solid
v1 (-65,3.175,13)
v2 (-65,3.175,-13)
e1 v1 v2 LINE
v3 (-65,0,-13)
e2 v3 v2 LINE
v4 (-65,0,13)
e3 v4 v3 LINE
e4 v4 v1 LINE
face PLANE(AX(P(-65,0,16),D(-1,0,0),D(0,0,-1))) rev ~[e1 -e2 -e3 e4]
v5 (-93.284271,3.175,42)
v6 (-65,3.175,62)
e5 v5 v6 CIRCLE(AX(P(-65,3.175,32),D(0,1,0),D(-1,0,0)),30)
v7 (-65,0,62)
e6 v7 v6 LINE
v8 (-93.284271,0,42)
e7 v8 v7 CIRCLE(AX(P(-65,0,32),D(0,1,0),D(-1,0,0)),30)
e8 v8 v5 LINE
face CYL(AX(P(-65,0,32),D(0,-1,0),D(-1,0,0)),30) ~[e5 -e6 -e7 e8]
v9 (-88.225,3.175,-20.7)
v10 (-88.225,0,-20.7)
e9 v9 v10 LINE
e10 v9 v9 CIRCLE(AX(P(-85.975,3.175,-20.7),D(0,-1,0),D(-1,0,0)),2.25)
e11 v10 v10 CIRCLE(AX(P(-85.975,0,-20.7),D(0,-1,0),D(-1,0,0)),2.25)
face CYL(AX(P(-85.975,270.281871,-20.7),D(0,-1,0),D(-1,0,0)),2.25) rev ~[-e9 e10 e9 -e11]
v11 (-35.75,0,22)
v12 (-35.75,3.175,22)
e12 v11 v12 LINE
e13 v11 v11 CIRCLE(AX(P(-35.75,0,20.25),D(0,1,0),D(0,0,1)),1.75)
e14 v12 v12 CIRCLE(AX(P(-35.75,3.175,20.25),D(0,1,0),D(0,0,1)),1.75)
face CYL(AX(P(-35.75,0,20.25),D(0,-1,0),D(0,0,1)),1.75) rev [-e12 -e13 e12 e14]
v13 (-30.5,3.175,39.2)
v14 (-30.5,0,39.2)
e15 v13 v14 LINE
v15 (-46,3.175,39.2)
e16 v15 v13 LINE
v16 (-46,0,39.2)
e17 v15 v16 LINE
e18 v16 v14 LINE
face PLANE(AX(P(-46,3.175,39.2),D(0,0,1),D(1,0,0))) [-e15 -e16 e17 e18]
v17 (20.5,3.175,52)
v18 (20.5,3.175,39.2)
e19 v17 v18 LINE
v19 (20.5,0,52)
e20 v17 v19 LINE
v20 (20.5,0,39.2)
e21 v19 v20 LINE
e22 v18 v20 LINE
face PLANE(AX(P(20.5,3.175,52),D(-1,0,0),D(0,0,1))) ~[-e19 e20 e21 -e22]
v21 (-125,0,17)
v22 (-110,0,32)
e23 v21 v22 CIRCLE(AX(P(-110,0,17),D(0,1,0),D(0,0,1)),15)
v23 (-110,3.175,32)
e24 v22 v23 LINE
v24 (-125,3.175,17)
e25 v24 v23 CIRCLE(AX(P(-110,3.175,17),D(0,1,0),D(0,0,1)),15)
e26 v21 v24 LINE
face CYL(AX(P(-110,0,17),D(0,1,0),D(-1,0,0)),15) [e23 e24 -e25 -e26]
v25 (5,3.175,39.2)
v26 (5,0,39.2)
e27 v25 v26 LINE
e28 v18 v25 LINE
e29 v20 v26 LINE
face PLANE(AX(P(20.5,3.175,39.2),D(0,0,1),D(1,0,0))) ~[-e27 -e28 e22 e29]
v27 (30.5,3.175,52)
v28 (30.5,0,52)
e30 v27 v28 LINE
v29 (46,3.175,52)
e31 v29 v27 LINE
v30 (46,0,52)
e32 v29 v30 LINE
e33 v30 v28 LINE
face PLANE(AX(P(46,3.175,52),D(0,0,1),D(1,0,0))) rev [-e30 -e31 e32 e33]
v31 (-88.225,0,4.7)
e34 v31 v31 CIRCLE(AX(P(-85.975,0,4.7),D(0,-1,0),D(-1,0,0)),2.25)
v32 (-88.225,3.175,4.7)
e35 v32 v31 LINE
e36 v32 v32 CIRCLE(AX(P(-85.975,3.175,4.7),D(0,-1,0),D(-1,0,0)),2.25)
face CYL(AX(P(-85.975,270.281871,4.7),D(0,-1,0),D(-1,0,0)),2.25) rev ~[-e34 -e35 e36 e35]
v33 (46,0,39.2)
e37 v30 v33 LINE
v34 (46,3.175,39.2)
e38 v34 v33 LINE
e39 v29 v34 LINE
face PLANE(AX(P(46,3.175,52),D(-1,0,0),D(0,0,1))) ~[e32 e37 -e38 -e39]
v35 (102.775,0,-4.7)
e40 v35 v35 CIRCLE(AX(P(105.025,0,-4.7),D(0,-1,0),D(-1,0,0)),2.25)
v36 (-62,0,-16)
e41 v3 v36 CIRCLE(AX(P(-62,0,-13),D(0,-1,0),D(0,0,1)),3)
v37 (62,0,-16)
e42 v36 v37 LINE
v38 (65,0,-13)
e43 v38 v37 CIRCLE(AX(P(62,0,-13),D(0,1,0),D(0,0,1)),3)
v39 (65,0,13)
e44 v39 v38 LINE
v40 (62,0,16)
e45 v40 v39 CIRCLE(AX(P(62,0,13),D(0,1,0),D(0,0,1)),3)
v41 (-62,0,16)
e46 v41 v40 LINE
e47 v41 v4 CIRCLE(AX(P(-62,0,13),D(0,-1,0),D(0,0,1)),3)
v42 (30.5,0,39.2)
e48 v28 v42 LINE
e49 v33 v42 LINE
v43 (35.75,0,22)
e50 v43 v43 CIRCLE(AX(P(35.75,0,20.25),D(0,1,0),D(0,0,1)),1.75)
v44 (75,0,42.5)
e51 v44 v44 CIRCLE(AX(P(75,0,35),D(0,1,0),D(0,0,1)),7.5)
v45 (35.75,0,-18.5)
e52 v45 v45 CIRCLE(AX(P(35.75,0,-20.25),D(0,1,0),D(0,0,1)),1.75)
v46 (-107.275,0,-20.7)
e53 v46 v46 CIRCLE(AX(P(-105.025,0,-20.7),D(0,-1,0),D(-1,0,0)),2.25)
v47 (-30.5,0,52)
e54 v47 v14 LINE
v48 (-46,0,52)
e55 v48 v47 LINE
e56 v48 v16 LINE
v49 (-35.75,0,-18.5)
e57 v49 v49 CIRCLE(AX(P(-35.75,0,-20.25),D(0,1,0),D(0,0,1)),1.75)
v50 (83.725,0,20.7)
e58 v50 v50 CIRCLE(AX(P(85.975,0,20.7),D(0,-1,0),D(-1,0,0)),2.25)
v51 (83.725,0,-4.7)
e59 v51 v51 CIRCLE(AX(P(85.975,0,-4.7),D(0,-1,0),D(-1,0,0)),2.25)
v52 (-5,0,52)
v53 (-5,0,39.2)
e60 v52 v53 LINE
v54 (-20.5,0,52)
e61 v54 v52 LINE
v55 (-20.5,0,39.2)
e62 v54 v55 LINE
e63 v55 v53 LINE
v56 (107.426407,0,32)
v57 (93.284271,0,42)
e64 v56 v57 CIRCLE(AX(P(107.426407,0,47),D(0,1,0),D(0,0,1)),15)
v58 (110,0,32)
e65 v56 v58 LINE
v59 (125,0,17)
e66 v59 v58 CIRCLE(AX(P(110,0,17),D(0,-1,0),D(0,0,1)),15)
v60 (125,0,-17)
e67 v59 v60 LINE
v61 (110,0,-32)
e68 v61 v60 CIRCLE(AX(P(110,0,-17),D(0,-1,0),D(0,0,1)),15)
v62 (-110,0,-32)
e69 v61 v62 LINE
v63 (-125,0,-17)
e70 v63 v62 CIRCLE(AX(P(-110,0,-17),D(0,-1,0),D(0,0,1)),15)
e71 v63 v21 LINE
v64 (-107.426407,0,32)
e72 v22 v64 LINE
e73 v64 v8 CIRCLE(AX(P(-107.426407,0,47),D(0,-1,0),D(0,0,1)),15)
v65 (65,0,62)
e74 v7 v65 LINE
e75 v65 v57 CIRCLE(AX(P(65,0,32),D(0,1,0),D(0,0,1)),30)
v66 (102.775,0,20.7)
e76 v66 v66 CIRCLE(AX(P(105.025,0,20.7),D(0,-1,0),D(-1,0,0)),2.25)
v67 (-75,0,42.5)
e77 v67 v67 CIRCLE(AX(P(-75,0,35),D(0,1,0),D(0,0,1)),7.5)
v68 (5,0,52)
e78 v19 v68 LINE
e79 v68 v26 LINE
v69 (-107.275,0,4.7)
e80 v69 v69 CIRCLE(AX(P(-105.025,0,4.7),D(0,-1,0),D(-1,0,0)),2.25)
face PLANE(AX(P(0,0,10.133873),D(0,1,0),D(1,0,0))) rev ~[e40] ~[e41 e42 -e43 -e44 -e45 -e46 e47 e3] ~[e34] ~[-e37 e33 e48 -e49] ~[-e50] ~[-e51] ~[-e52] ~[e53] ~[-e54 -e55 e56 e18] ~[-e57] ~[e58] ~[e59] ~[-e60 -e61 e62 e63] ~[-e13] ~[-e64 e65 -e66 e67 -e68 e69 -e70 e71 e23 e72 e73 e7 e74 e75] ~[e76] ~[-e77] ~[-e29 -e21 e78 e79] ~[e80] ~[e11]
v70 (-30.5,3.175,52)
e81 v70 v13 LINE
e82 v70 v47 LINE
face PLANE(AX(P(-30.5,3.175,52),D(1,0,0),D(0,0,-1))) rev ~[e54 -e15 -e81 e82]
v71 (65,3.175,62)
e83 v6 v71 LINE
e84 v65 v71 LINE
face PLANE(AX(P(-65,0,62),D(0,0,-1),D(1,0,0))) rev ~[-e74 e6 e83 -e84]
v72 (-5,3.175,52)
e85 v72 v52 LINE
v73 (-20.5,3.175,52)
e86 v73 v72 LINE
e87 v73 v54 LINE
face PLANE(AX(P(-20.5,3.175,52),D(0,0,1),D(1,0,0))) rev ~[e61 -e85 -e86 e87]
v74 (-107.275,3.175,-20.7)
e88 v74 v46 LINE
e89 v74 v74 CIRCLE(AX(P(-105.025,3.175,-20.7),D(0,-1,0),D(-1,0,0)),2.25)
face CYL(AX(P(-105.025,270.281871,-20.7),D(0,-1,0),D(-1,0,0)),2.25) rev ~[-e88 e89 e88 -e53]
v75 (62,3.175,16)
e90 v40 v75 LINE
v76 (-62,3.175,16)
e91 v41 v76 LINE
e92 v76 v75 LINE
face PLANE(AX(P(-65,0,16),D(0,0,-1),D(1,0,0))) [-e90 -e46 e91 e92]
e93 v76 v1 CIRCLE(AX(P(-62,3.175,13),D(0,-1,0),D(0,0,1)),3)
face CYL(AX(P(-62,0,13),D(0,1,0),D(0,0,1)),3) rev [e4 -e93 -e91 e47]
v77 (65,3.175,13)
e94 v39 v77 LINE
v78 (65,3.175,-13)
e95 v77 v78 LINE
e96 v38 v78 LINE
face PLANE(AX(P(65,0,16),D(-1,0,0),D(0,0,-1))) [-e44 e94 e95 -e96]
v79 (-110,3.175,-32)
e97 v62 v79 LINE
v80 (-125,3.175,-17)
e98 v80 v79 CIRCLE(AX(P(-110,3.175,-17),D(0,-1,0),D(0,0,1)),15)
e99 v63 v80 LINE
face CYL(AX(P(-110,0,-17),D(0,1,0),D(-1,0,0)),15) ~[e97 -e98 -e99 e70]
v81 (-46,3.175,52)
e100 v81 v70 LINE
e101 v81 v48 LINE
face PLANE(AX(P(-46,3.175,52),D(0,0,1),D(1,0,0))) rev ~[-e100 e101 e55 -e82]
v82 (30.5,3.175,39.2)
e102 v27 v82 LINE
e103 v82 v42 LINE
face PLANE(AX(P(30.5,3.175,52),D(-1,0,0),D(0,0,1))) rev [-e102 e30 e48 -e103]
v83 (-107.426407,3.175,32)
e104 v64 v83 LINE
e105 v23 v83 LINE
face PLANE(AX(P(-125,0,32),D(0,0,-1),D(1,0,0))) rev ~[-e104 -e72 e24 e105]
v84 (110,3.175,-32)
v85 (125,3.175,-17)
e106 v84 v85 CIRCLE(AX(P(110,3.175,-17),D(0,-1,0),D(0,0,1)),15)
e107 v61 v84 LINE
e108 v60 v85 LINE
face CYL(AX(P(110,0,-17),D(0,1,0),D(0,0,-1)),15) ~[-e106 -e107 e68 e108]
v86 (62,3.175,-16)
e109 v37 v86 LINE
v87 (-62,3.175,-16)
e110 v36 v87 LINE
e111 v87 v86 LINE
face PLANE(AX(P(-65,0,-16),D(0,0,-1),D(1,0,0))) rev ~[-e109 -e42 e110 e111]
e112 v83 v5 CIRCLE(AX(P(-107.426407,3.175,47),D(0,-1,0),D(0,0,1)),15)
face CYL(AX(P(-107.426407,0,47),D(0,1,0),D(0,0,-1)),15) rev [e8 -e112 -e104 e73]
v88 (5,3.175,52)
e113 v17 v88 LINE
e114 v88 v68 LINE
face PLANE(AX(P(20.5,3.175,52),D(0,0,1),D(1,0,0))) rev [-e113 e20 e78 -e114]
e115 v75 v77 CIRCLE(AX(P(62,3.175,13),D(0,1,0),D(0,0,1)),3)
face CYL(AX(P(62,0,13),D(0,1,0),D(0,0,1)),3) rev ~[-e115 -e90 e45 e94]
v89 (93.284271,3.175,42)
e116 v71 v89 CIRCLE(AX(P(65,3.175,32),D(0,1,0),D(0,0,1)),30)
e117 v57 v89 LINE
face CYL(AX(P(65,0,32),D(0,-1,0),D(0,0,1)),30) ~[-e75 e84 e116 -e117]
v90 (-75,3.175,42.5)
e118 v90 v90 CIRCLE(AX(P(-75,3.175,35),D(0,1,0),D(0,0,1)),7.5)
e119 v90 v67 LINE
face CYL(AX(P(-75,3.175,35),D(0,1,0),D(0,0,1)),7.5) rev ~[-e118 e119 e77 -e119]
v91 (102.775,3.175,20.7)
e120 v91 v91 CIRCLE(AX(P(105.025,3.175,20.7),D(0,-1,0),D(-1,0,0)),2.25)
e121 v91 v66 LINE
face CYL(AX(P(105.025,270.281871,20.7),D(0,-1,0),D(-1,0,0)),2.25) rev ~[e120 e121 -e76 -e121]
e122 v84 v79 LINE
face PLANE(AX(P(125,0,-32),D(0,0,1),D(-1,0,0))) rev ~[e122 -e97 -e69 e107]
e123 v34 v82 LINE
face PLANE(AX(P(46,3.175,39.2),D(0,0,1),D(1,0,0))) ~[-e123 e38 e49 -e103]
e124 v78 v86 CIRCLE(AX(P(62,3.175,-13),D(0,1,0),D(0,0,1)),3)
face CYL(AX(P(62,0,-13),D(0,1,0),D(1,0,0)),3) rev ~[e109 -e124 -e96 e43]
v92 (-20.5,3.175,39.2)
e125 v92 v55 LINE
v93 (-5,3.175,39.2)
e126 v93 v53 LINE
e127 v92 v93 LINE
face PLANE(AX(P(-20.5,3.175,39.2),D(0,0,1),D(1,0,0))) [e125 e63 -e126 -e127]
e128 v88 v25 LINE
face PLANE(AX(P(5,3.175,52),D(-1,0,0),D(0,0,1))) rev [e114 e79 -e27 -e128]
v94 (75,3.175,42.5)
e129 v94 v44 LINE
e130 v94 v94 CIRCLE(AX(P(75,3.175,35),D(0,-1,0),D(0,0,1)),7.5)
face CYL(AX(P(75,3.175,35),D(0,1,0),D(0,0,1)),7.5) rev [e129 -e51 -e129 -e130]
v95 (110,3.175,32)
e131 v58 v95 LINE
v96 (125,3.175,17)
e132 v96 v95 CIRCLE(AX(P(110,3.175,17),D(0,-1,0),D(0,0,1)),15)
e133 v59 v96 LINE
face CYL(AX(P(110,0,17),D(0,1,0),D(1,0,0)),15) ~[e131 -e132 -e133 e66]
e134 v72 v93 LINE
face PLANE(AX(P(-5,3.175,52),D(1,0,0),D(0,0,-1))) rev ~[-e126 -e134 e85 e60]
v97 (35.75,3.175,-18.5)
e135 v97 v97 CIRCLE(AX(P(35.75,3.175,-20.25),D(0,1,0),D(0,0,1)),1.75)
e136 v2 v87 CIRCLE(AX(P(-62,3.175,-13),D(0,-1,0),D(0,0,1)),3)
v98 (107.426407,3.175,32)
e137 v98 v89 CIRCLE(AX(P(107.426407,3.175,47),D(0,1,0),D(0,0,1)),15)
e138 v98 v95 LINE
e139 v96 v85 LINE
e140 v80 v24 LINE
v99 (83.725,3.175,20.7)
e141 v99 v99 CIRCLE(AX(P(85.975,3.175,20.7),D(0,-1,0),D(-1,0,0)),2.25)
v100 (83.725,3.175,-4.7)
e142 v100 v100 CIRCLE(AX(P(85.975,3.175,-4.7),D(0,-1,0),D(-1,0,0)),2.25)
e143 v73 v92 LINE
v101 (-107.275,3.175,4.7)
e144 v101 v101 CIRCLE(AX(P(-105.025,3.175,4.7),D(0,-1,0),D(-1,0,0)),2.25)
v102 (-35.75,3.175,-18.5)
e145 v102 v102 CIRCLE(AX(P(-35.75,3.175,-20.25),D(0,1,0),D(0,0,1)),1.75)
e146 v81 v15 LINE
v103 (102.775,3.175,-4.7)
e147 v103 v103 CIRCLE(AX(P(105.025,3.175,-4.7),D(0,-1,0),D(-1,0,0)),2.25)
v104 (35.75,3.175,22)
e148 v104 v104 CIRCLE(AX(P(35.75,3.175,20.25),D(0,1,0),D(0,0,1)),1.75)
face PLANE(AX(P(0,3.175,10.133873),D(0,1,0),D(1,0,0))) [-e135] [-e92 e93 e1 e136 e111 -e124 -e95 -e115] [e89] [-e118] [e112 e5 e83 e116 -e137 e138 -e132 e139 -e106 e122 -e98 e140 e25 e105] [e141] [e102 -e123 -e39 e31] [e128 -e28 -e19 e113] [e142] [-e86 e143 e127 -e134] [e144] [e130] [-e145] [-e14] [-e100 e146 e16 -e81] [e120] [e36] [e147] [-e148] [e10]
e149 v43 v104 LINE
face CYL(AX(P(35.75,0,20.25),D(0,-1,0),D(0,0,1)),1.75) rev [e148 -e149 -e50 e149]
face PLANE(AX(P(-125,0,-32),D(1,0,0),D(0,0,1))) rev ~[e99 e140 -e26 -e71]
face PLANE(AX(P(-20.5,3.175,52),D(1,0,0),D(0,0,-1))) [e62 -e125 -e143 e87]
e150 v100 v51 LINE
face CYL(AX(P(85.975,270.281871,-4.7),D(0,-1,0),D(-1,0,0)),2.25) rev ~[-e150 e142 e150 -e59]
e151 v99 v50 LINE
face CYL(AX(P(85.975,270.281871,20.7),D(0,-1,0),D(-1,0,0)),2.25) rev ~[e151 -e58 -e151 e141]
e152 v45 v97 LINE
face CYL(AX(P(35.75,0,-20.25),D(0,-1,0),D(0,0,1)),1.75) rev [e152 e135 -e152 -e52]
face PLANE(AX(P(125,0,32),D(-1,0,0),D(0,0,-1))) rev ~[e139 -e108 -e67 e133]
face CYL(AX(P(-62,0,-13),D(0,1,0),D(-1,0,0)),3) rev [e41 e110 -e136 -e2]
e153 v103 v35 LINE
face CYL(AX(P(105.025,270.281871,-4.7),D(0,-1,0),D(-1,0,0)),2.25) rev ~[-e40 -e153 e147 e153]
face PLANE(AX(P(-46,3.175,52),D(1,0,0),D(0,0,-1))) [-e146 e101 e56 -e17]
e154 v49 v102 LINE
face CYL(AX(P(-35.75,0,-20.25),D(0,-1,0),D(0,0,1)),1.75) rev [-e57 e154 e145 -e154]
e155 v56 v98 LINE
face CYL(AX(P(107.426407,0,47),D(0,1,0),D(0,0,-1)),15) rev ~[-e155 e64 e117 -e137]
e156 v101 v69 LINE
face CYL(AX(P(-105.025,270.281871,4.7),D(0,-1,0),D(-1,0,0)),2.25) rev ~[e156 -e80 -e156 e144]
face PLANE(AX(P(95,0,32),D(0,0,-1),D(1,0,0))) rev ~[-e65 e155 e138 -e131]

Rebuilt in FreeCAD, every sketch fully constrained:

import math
import FreeCAD as App
import Part
import Sketcher

V = App.Vector


def edges_at(feature, points):
    """Names of the edges that pass closest to the given points."""
    edges = feature.Shape.Edges
    near = lambda p: min(range(len(edges)), key=lambda i: edges[i].distToShape(Part.Vertex(*p))[0])
    return sorted({f"Edge{near(p) + 1}" for p in points})


def add_polygon(sketch, points):
    """Adds a closed chain of lines whose ends are joined by coincident constraints."""
    first, n = sketch.GeometryCount, len(points)
    for a, b in zip(points, points[1:] + points[:1]):
        sketch.addGeometry(Part.LineSegment(App.Vector(*a, 0), App.Vector(*b, 0)), False)
    for i in range(n):
        sketch.addConstraint(Sketcher.Constraint("Coincident", first + i, 2, first + (i + 1) % n, 1))

doc = App.newDocument("Part")
body = doc.addObject("PartDesign::Body", "Body")

# Sketch on XZ plane
sketch1 = body.newObject("Sketcher::SketchObject", "Sketch")
sketch1.AttachmentSupport = (doc.getObject("XZ_Plane"), [""])
sketch1.MapMode = "FlatFace"
sketch1.addGeometry(Part.LineSegment(V(-125, -32, 0), V(-125, 32, 0)), False)  # 0
sketch1.addGeometry(Part.LineSegment(V(-125, 32, 0), V(-95, 32, 0)), False)  # 1
sketch1.addGeometry(Part.ArcOfCircle(Part.Circle(V(-65, 32, 0), V(0, 0, 1), 30), math.radians(90), math.radians(180)), False)  # 2
sketch1.addGeometry(Part.LineSegment(V(-65, 62, 0), V(65, 62, 0)), False)  # 3
sketch1.addGeometry(Part.ArcOfCircle(Part.Circle(V(65, 32, 0), V(0, 0, 1), 30), math.radians(0), math.radians(90)), False)  # 4
sketch1.addGeometry(Part.LineSegment(V(95, 32, 0), V(125, 32, 0)), False)  # 5
sketch1.addGeometry(Part.LineSegment(V(125, 32, 0), V(125, -32, 0)), False)  # 6
sketch1.addGeometry(Part.LineSegment(V(125, -32, 0), V(-125, -32, 0)), False)  # 7
sketch1.addGeometry(Part.Circle(V(-35.75, 20.25, 0), V(0, 0, 1), 1.75), False)  # 8
sketch1.addGeometry(Part.Circle(V(35.75, 20.25, 0), V(0, 0, 1), 1.75), False)  # 9
sketch1.addGeometry(Part.Circle(V(-35.75, -20.25, 0), V(0, 0, 1), 1.75), False)  # 10
add_polygon(sketch1, [(65, 16), (-65, 16), (-65, -16), (65, -16)])  # lines 11-14
sketch1.addGeometry(Part.Circle(V(35.75, -20.25, 0), V(0, 0, 1), 1.75), False)  # 15
sketch1.addConstraint(Sketcher.Constraint("Coincident", 0, 2, 1, 1))
sketch1.addConstraint(Sketcher.Constraint("Coincident", 1, 2, 2, 2))
sketch1.addConstraint(Sketcher.Constraint("Tangent", 2, 1, 3, 1))
sketch1.addConstraint(Sketcher.Constraint("Tangent", 3, 2, 4, 2))
sketch1.addConstraint(Sketcher.Constraint("Coincident", 4, 1, 5, 1))
sketch1.addConstraint(Sketcher.Constraint("Coincident", 5, 2, 6, 1))
sketch1.addConstraint(Sketcher.Constraint("Coincident", 6, 2, 7, 1))
sketch1.addConstraint(Sketcher.Constraint("Coincident", 7, 2, 0, 1))
sketch1.addConstraint(Sketcher.Constraint("Vertical", 0))
sketch1.addConstraint(Sketcher.Constraint("Horizontal", 1))
sketch1.addConstraint(Sketcher.Constraint("Horizontal", 3))
sketch1.addConstraint(Sketcher.Constraint("Horizontal", 5))
sketch1.addConstraint(Sketcher.Constraint("Vertical", 6))
sketch1.addConstraint(Sketcher.Constraint("Horizontal", 7))
sketch1.addConstraint(Sketcher.Constraint("Horizontal", 11))
sketch1.addConstraint(Sketcher.Constraint("Vertical", 12))
sketch1.addConstraint(Sketcher.Constraint("Horizontal", 13))
sketch1.addConstraint(Sketcher.Constraint("Vertical", 14))
sketch1.addConstraint(Sketcher.Constraint("Equal", 2, 4))
sketch1.addConstraint(Sketcher.Constraint("Equal", 8, 9))
sketch1.addConstraint(Sketcher.Constraint("Equal", 9, 10))
sketch1.addConstraint(Sketcher.Constraint("Equal", 10, 15))
sketch1.addConstraint(Sketcher.Constraint("Symmetric", 9, 3, 10, 3, -1, 1))
sketch1.addConstraint(Sketcher.Constraint("Symmetric", 8, 3, 15, 3, -1, 1))
sketch1.addConstraint(Sketcher.Constraint("Symmetric", 0, 2, 6, 2, -1, 1))
sketch1.addConstraint(Sketcher.Constraint("Symmetric", 11, 2, 13, 2, -1, 1))
sketch1.addConstraint(Sketcher.Constraint("Symmetric", 8, 3, 9, 3, -2))
sketch1.addConstraint(Sketcher.Constraint("Symmetric", 1, 2, 4, 1, -2))
sketch1.addConstraint(Sketcher.Constraint("Horizontal", 4, 3, 0, 2))
sketch1.addConstraint(Sketcher.Constraint("Vertical", 2, 1, 11, 2))
sketch1.addConstraint(Sketcher.Constraint("Radius", 2, 30.0))
sketch1.addConstraint(Sketcher.Constraint("Diameter", 8, 3.5))
sketch1.addConstraint(Sketcher.Constraint("DistanceX", 1, 1, 1, 2, 30.0))
sketch1.addConstraint(Sketcher.Constraint("DistanceX", 3, 1, 3, 2, 130.0))
sketch1.addConstraint(Sketcher.Constraint("DistanceY", 0, 1, 0, 2, 64.0))
sketch1.addConstraint(Sketcher.Constraint("DistanceY", 12, 2, 12, 1, 32.0))
sketch1.addConstraint(Sketcher.Constraint("DistanceX", 8, 3, 9, 3, 71.5))
sketch1.addConstraint(Sketcher.Constraint("DistanceY", 10, 3, 8, 3, 40.5))
pad1 = body.newObject("PartDesign::Pad", "Pad")
pad1.Profile = sketch1
pad1.Length = 3.175
pad1.Reversed = True

# Sketch on XZ plane
sketch2 = body.newObject("Sketcher::SketchObject", "Sketch001")
sketch2.AttachmentSupport = (doc.getObject("XZ_Plane"), [""])
sketch2.MapMode = "FlatFace"
sketch2.AttachmentOffset = App.Placement(V(0, 0, -3.175), App.Rotation())
sketch2.addGeometry(Part.Circle(V(-105.025, -20.7, 0), V(0, 0, 1), 2.25), False)
sketch2.addGeometry(Part.Circle(V(-85.975, -20.7, 0), V(0, 0, 1), 2.25), False)
sketch2.addGeometry(Part.Circle(V(-105.025, 4.7, 0), V(0, 0, 1), 2.25), False)
sketch2.addGeometry(Part.Circle(V(-85.975, 4.7, 0), V(0, 0, 1), 2.25), False)
sketch2.addGeometry(Part.Circle(V(85.975, -4.7, 0), V(0, 0, 1), 2.25), False)
sketch2.addGeometry(Part.Circle(V(105.025, -4.7, 0), V(0, 0, 1), 2.25), False)
sketch2.addGeometry(Part.Circle(V(105.025, 20.7, 0), V(0, 0, 1), 2.25), False)
sketch2.addGeometry(Part.Circle(V(85.975, 20.7, 0), V(0, 0, 1), 2.25), False)
sketch2.addConstraint(Sketcher.Constraint("Equal", 0, 1))
sketch2.addConstraint(Sketcher.Constraint("Equal", 1, 2))
sketch2.addConstraint(Sketcher.Constraint("Equal", 2, 3))
sketch2.addConstraint(Sketcher.Constraint("Equal", 3, 4))
sketch2.addConstraint(Sketcher.Constraint("Equal", 4, 5))
sketch2.addConstraint(Sketcher.Constraint("Equal", 5, 6))
sketch2.addConstraint(Sketcher.Constraint("Equal", 6, 7))
sketch2.addConstraint(Sketcher.Constraint("Symmetric", 3, 3, 4, 3, -1, 1))
sketch2.addConstraint(Sketcher.Constraint("Symmetric", 2, 3, 5, 3, -1, 1))
sketch2.addConstraint(Sketcher.Constraint("Symmetric", 0, 3, 6, 3, -1, 1))
sketch2.addConstraint(Sketcher.Constraint("Symmetric", 1, 3, 7, 3, -1, 1))
sketch2.addConstraint(Sketcher.Constraint("Horizontal", 0, 3, 1, 3))
sketch2.addConstraint(Sketcher.Constraint("Horizontal", 2, 3, 3, 3))
sketch2.addConstraint(Sketcher.Constraint("Vertical", 0, 3, 2, 3))
sketch2.addConstraint(Sketcher.Constraint("Vertical", 1, 3, 3, 3))
sketch2.addConstraint(Sketcher.Constraint("Diameter", 0, 4.5))
sketch2.addConstraint(Sketcher.Constraint("DistanceY", 1, 3, 4, 3, 16.0))
sketch2.addConstraint(Sketcher.Constraint("DistanceX", 2, 3, 4, 3, 191.0))
sketch2.addConstraint(Sketcher.Constraint("DistanceY", 0, 3, -1, 1, 20.7))
sketch2.addConstraint(Sketcher.Constraint("DistanceX", 0, 3, 1, 3, 19.05))
doc.recompute()
hole = body.newObject("PartDesign::Hole", "Hole")
hole.Profile = sketch2
hole.ThreadType = "None"
hole.Diameter = 4.5
hole.DepthType = "ThroughAll"
hole.Reversed = True
doc.recompute()

fillet = body.newObject("PartDesign::Fillet", "Fillet")
fillet.Base = (hole, edges_at(hole, [
    (-125, 1.587, 32),
    (-125, 1.587, -32),
    (125, 1.587, -32),
    (125, 1.587, 32),
    (95, 1.587, 32),
    (-95, 1.587, 32),
]))
fillet.Radius = 15

# Sketch on XZ plane
sketch3 = body.newObject("Sketcher::SketchObject", "Sketch002")
sketch3.AttachmentSupport = (doc.getObject("XZ_Plane"), [""])
sketch3.MapMode = "FlatFace"
sketch3.AttachmentOffset = App.Placement(V(0, 0, -3.175), App.Rotation())
add_polygon(sketch3, [(-46, 39.2), (-46, 52), (-30.5, 52), (-30.5, 39.2)])  # lines 0-3
add_polygon(sketch3, [(-20.5, 39.2), (-20.5, 52), (-5, 52), (-5, 39.2)])  # lines 4-7
sketch3.addConstraint(Sketcher.Constraint("Vertical", 0))
sketch3.addConstraint(Sketcher.Constraint("Horizontal", 1))
sketch3.addConstraint(Sketcher.Constraint("Vertical", 2))
sketch3.addConstraint(Sketcher.Constraint("Horizontal", 3))
sketch3.addConstraint(Sketcher.Constraint("Vertical", 4))
sketch3.addConstraint(Sketcher.Constraint("Horizontal", 5))
sketch3.addConstraint(Sketcher.Constraint("Vertical", 6))
sketch3.addConstraint(Sketcher.Constraint("Horizontal", 7))
sketch3.addConstraint(Sketcher.Constraint("Horizontal", 1, 2, 4, 2))
sketch3.addConstraint(Sketcher.Constraint("Horizontal", 3, 2, 6, 2))
sketch3.addConstraint(Sketcher.Constraint("Equal", 3, 5))
sketch3.addConstraint(Sketcher.Constraint("DistanceX", 1, 1, 1, 2, 15.5))
sketch3.addConstraint(Sketcher.Constraint("DistanceY", 0, 1, 0, 2, 12.8))
sketch3.addConstraint(Sketcher.Constraint("DistanceX", 0, 2, -1, 1, 46.0))
sketch3.addConstraint(Sketcher.Constraint("DistanceY", -1, 1, 0, 2, 52.0))
sketch3.addConstraint(Sketcher.Constraint("DistanceX", 5, 2, -1, 1, 5.0))
pocket1 = body.newObject("PartDesign::Pocket", "Pocket")
pocket1.Profile = sketch3
pocket1.Type = "ThroughAll"
pocket1.Reversed = True

# Sketch on XZ plane
sketch4 = body.newObject("Sketcher::SketchObject", "Sketch003")
sketch4.AttachmentSupport = (doc.getObject("XZ_Plane"), [""])
sketch4.MapMode = "FlatFace"
sketch4.AttachmentOffset = App.Placement(V(0, 0, -3.175), App.Rotation())
sketch4.addGeometry(Part.Circle(V(-75, 35, 0), V(0, 0, 1), 7.5), False)
sketch4.addConstraint(Sketcher.Constraint("Diameter", 0, 15.0))
sketch4.addConstraint(Sketcher.Constraint("DistanceX", 0, 3, -1, 1, 75.0))
sketch4.addConstraint(Sketcher.Constraint("DistanceY", -1, 1, 0, 3, 35.0))
pocket2 = body.newObject("PartDesign::Pocket", "Pocket001")
pocket2.Profile = sketch4
pocket2.Type = "ThroughAll"
pocket2.Reversed = True
doc.recompute()

mirrored = body.newObject("PartDesign::Mirrored", "Mirrored")
mirrored.Originals = [pocket1, pocket2]
mirrored.MirrorPlane = (doc.getObject("YZ_Plane"), [""])
body.Tip = mirrored
doc.recompute()

fillet2 = body.newObject("PartDesign::Fillet", "Fillet001")
fillet2.Base = (mirrored, edges_at(mirrored, [
    (65, 1.587, 16),
    (65, 1.587, -16),
    (-65, 1.587, -16),
    (-65, 1.587, 16),
]))
fillet2.Radius = 3

doc.recompute()
